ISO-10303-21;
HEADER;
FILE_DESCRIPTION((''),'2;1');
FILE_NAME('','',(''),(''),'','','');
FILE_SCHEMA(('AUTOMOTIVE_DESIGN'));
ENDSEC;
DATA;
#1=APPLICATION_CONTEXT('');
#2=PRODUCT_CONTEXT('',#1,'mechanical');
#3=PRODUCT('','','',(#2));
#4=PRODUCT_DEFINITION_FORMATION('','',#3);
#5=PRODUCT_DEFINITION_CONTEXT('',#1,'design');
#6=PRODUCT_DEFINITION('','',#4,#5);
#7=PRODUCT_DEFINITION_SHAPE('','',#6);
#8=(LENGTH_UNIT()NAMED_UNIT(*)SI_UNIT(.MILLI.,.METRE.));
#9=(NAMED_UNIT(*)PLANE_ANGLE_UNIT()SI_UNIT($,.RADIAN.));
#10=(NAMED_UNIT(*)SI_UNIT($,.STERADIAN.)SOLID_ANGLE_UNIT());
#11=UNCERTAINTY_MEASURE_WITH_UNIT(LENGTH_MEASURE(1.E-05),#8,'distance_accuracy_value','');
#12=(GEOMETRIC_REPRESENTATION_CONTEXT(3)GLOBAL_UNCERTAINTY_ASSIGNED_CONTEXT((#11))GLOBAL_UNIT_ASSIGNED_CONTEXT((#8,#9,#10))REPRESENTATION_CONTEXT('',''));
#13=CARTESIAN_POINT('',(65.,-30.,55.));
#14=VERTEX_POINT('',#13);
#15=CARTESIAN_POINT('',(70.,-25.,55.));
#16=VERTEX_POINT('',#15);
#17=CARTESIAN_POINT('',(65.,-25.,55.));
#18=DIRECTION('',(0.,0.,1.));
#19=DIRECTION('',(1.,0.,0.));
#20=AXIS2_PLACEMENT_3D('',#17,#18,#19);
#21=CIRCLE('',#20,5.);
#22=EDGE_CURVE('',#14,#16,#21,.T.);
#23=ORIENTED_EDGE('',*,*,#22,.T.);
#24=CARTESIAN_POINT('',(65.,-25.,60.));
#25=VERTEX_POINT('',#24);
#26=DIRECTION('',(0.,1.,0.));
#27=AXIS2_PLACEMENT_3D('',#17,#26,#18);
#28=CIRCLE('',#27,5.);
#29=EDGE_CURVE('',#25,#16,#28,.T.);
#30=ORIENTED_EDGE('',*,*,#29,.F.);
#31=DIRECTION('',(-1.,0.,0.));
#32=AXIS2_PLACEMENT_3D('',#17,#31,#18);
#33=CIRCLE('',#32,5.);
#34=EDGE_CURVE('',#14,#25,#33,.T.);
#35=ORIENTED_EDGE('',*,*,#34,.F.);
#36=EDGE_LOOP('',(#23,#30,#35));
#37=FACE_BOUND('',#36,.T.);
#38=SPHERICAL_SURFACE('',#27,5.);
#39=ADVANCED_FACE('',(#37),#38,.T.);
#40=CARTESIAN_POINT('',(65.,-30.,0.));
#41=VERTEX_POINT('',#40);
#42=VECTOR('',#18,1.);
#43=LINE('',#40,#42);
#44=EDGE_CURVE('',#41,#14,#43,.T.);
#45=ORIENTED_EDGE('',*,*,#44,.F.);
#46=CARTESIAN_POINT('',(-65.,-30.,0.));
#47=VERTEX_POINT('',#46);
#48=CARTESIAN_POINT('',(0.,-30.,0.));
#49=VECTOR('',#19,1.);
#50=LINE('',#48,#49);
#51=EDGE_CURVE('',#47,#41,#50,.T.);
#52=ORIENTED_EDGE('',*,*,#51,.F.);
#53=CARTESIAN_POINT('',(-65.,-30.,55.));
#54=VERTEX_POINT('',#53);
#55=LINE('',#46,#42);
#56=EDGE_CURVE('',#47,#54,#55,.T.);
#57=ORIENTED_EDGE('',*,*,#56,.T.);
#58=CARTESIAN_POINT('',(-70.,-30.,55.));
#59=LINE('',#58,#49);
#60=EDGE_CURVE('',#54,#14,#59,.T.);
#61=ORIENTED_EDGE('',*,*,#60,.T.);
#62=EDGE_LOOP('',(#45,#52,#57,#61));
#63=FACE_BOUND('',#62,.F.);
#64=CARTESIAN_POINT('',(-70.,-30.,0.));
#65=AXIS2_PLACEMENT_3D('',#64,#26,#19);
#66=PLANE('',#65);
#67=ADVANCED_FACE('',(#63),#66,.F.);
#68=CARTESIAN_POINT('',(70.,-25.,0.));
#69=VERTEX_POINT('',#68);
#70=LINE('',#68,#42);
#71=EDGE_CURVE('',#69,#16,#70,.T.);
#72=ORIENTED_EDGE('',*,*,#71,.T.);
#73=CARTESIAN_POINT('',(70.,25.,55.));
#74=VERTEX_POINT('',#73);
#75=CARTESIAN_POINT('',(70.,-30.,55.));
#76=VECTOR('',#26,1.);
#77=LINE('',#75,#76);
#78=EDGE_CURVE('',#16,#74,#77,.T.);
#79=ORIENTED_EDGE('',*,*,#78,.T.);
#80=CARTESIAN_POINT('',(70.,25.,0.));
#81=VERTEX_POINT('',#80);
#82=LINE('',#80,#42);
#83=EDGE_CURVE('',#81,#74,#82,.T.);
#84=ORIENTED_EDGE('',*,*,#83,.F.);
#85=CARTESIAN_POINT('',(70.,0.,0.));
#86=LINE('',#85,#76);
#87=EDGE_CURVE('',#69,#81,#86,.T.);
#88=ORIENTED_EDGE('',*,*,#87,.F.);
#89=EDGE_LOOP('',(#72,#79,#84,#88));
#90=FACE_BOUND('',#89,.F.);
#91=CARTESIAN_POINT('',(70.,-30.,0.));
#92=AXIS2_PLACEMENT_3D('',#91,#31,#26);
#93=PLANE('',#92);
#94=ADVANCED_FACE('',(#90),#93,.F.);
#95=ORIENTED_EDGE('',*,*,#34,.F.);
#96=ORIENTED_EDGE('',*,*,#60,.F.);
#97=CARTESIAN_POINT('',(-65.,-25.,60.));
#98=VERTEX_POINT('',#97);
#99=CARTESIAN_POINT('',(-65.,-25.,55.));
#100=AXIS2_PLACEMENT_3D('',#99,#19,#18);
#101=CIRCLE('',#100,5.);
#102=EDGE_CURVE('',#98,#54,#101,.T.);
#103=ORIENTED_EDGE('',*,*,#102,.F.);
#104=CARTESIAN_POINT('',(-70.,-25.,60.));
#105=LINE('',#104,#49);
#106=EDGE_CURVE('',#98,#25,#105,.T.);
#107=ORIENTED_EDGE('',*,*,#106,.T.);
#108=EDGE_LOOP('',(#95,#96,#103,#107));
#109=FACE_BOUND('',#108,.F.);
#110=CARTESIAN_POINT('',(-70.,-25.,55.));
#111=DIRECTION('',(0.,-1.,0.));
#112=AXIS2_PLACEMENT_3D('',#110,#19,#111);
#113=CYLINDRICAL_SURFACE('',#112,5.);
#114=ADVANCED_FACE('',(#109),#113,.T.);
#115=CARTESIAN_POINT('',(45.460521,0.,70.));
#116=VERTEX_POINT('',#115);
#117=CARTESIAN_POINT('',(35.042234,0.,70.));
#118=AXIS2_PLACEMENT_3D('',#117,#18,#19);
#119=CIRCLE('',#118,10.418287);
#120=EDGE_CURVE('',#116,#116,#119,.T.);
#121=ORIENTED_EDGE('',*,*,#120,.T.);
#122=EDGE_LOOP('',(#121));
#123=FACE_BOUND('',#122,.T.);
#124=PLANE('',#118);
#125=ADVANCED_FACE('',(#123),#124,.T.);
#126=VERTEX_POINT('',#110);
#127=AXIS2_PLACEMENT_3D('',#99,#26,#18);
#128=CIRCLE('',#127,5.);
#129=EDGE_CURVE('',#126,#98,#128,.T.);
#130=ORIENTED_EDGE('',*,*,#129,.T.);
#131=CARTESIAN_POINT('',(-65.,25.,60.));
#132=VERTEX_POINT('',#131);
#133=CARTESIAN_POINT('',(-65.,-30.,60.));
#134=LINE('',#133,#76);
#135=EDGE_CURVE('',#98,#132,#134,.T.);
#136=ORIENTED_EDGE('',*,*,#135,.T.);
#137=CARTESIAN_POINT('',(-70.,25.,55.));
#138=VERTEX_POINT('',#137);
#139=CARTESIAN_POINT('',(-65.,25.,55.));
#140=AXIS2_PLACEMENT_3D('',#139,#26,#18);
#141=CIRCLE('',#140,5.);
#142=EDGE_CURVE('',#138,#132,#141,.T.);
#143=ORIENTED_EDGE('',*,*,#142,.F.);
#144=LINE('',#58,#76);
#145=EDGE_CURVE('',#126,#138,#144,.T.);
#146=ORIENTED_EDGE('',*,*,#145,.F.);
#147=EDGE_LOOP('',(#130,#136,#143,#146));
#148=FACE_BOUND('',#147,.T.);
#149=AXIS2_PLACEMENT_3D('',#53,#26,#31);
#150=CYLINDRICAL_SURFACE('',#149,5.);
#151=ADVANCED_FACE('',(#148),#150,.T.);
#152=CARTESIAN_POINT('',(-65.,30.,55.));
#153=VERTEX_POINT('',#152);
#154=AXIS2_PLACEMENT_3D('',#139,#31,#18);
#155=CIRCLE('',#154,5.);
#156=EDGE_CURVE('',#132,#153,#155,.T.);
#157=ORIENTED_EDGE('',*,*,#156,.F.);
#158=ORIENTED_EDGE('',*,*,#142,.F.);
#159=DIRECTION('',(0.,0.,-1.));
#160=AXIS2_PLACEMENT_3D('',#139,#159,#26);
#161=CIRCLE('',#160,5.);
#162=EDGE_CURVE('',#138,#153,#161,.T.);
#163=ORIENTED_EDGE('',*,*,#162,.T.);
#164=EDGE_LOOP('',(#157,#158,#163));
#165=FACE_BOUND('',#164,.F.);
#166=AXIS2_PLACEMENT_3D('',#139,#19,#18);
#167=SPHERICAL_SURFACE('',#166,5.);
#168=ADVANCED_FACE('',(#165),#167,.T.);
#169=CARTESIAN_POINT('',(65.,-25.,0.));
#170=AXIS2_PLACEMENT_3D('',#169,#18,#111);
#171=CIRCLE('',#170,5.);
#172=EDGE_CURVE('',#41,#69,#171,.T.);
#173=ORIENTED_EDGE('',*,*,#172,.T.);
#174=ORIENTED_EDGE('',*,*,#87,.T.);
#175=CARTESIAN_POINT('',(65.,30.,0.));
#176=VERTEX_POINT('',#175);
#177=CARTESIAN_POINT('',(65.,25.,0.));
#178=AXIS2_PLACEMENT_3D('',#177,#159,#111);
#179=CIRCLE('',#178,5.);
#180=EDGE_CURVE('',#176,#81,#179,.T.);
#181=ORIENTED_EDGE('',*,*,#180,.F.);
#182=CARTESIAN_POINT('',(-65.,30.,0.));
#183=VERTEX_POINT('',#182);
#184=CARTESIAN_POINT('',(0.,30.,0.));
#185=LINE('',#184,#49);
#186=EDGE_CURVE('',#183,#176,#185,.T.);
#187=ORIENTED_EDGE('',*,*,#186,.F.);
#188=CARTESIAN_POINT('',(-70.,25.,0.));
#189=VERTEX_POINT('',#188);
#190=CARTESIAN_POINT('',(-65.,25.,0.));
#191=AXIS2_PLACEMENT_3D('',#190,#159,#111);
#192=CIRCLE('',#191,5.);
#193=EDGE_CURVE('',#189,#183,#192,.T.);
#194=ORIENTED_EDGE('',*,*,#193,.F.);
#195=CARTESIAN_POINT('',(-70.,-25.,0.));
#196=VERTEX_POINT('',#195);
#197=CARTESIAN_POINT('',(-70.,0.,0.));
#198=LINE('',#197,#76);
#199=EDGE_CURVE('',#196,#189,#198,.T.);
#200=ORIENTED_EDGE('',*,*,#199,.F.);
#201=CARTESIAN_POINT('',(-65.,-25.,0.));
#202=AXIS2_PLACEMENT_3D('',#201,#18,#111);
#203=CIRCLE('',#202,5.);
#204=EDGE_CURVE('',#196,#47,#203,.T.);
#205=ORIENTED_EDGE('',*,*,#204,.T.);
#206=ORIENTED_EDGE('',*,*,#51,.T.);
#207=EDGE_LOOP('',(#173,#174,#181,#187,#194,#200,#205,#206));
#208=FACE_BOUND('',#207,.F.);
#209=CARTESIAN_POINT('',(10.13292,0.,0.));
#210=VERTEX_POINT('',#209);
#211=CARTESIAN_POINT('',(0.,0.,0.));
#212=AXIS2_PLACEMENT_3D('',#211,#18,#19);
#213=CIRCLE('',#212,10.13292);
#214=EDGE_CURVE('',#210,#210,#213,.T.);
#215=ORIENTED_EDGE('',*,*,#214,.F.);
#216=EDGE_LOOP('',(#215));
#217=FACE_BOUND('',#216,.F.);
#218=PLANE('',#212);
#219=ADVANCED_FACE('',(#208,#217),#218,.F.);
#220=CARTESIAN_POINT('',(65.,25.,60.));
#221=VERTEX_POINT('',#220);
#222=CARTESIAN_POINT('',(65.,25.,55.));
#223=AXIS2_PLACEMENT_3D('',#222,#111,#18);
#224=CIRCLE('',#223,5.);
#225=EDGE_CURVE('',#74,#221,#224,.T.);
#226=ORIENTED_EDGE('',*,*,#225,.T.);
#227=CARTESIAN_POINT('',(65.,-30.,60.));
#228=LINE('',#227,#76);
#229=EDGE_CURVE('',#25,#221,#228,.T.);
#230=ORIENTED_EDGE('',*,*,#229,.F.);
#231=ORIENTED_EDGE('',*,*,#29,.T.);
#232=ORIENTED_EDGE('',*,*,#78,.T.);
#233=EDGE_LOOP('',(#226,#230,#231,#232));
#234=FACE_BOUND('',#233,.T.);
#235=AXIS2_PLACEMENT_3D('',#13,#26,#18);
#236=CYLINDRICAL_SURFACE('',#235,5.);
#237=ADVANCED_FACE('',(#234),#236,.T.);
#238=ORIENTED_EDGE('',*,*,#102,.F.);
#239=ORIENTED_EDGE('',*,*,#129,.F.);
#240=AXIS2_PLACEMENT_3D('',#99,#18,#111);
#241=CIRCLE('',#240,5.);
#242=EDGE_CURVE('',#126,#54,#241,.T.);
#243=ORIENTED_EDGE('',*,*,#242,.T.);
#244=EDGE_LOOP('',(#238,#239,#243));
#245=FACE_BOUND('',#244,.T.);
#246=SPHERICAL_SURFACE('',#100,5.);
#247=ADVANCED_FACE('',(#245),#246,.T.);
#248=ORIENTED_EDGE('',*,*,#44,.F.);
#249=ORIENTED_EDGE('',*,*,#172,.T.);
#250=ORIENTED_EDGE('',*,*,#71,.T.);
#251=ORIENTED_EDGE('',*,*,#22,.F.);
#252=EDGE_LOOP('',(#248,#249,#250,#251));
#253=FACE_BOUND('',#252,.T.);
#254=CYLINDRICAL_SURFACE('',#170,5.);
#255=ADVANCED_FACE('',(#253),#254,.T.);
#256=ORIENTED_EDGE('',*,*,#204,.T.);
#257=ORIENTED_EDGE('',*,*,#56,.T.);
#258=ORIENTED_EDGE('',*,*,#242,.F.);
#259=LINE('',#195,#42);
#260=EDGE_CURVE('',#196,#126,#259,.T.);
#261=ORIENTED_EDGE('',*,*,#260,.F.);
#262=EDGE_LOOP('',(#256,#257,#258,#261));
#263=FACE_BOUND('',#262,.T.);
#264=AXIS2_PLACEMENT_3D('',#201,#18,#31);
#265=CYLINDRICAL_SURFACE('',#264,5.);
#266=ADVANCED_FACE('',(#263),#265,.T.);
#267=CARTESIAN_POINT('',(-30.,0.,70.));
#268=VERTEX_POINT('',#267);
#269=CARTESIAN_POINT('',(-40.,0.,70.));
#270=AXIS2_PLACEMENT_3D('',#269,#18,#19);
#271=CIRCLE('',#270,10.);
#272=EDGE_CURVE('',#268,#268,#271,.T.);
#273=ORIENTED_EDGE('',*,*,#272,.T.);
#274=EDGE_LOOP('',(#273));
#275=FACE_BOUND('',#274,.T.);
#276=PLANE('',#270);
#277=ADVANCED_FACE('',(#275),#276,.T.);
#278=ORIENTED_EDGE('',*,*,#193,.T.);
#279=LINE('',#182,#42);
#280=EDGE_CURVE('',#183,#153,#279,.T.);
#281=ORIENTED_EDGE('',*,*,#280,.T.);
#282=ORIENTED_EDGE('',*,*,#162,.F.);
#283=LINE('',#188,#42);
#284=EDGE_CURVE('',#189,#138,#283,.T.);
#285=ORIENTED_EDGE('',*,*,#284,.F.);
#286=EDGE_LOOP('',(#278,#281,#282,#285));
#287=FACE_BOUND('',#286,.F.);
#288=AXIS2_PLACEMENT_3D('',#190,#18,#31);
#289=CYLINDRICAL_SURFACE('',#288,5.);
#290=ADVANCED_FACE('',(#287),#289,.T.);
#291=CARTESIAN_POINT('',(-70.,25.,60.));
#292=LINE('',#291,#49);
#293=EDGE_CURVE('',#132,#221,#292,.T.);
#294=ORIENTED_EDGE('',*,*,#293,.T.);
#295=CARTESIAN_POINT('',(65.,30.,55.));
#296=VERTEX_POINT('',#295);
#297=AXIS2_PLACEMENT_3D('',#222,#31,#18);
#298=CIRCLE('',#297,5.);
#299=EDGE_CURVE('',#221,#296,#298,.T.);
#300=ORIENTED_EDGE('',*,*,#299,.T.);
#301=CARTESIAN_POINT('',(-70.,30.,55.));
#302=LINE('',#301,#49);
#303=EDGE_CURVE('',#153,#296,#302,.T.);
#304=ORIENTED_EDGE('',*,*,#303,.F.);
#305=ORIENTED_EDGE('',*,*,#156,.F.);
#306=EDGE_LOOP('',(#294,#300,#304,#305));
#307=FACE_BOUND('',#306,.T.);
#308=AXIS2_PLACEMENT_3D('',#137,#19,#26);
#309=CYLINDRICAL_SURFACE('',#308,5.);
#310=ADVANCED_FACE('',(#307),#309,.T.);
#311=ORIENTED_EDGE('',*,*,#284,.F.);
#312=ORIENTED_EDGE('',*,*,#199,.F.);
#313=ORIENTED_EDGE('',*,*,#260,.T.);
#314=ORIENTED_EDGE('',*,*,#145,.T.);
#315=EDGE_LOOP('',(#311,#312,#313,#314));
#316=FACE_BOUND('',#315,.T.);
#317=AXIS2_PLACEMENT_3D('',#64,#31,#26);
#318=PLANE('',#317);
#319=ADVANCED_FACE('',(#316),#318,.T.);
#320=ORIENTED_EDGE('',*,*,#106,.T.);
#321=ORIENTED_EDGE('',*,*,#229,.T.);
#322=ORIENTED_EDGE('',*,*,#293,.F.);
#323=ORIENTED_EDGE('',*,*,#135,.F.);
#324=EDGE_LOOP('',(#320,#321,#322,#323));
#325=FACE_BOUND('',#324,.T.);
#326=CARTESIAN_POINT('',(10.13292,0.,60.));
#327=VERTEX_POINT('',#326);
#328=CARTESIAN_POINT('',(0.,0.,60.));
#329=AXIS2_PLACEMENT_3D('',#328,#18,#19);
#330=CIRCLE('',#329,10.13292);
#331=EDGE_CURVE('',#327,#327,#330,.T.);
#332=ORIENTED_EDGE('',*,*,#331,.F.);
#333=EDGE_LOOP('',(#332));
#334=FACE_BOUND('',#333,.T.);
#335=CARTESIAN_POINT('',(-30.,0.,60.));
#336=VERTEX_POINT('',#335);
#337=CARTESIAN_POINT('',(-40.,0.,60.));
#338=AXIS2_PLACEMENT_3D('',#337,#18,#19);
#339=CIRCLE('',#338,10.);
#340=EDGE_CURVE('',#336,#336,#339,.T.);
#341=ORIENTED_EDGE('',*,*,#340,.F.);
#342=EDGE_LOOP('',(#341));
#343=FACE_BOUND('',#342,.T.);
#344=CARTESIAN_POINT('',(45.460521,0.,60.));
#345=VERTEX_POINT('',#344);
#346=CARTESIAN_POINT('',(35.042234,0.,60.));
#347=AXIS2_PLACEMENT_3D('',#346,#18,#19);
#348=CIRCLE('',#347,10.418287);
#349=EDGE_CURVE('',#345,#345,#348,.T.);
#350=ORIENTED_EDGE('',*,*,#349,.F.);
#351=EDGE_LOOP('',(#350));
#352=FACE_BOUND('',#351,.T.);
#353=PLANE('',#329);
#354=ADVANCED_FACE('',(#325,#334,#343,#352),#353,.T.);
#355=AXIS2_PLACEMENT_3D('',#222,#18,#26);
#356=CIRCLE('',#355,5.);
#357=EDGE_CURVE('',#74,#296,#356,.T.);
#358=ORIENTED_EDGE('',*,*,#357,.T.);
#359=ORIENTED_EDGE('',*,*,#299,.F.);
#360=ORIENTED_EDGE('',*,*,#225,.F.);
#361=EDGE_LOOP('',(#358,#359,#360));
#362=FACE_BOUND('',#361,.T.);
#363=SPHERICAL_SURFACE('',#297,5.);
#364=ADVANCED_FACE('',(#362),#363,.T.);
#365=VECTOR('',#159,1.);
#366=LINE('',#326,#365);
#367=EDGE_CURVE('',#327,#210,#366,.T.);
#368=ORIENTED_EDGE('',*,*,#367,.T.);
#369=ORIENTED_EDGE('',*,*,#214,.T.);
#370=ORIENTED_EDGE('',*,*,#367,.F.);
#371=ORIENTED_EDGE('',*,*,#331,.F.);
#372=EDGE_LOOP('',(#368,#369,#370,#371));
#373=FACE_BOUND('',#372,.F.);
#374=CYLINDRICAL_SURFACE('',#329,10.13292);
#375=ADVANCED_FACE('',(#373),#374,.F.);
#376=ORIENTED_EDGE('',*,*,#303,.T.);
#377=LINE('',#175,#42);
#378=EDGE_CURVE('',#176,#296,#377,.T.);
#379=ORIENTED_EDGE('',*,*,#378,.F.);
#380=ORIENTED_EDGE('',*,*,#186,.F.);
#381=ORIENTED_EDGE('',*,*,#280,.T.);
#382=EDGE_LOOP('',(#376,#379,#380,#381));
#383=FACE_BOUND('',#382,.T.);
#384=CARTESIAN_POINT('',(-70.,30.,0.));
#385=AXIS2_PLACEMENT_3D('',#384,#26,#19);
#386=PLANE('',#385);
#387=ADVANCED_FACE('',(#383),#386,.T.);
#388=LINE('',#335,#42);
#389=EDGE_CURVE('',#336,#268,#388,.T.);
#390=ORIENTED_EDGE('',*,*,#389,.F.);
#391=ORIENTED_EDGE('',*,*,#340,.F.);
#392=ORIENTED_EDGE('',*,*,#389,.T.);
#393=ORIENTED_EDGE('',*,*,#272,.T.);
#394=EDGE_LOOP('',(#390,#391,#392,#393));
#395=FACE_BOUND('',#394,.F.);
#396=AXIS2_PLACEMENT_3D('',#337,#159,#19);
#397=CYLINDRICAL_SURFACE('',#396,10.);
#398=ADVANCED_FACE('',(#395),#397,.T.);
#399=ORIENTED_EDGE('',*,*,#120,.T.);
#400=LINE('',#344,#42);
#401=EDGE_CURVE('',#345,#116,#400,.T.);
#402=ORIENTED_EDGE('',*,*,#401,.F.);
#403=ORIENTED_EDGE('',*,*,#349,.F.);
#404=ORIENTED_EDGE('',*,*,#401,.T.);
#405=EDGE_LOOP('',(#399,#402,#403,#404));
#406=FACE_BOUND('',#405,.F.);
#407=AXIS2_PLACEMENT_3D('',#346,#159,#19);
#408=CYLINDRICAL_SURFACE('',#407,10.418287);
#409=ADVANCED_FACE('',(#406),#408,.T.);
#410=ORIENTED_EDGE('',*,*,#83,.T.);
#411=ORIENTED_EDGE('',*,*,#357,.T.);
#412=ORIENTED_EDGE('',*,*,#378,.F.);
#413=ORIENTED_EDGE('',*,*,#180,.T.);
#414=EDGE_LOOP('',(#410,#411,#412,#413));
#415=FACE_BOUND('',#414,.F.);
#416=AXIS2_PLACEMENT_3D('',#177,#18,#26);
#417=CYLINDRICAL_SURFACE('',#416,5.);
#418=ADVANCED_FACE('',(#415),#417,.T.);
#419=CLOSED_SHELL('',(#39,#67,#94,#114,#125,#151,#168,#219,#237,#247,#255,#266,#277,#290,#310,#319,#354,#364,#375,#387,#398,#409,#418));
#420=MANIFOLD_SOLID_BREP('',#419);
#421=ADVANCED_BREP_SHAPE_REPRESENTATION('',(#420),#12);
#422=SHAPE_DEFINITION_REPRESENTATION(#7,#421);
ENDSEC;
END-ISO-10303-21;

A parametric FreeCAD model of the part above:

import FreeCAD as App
import Part
import Sketcher

V = App.Vector


def edges_at(feature, points):
    """Names of the edges that pass closest to the given points."""
    edges = feature.Shape.Edges
    near = lambda p: min(range(len(edges)), key=lambda i: edges[i].distToShape(Part.Vertex(*p))[0])
    return sorted({f"Edge{near(p) + 1}" for p in points})

doc = App.newDocument("Part")
body = doc.addObject("PartDesign::Body", "Body")

sketch1 = body.newObject("Sketcher::SketchObject", "Sketch")
sketch1.AttachmentSupport = (doc.getObject("XY_Plane"), [""])
sketch1.MapMode = "FlatFace"
sketch1.addGeometry(Part.LineSegment(V(-70, 30, 0), V(-70, -30, 0)), False)
sketch1.addGeometry(Part.LineSegment(V(-70, -30, 0), V(70, -30, 0)), False)
sketch1.addGeometry(Part.LineSegment(V(70, -30, 0), V(70, 30, 0)), False)
sketch1.addGeometry(Part.LineSegment(V(70, 30, 0), V(-70, 30, 0)), False)
sketch1.addConstraint(Sketcher.Constraint("Coincident", 0, 2, 1, 1))
sketch1.addConstraint(Sketcher.Constraint("Coincident", 1, 2, 2, 1))
sketch1.addConstraint(Sketcher.Constraint("Coincident", 2, 2, 3, 1))
sketch1.addConstraint(Sketcher.Constraint("Coincident", 3, 2, 0, 1))
sketch1.addConstraint(Sketcher.Constraint("Vertical", 0))
sketch1.addConstraint(Sketcher.Constraint("Horizontal", 1))
sketch1.addConstraint(Sketcher.Constraint("Vertical", 2))
sketch1.addConstraint(Sketcher.Constraint("Horizontal", 3))
sketch1.addConstraint(Sketcher.Constraint("Symmetric", 0, 2, 2, 2, -1, 1))
sketch1.addConstraint(Sketcher.Constraint("DistanceX", 1, 1, 1, 2, 140.0))
sketch1.addConstraint(Sketcher.Constraint("DistanceY", 0, 2, 0, 1, 60.0))
pad1 = body.newObject("PartDesign::Pad", "Pad")
pad1.Profile = sketch1
pad1.Length = 60

sketch2 = body.newObject("Sketcher::SketchObject", "Sketch001")
sketch2.AttachmentSupport = (doc.getObject("XY_Plane"), [""])
sketch2.MapMode = "FlatFace"
sketch2.AttachmentOffset = App.Placement(V(0, 0, 60), App.Rotation())
sketch2.addGeometry(Part.Circle(V(-40, 0, 0), V(0, 0, 1), 10), False)
sketch2.addConstraint(Sketcher.Constraint("PointOnObject", 0, 3, -1))
sketch2.addConstraint(Sketcher.Constraint("Diameter", 0, 20.0))
sketch2.addConstraint(Sketcher.Constraint("DistanceX", 0, 3, -1, 1, 40.0))
pad2 = body.newObject("PartDesign::Pad", "Pad001")
pad2.Profile = sketch2
pad2.Length = 10

sketch3 = body.newObject("Sketcher::SketchObject", "Sketch002")
sketch3.AttachmentSupport = (doc.getObject("XY_Plane"), [""])
sketch3.MapMode = "FlatFace"
sketch3.AttachmentOffset = App.Placement(V(0, 0, 60), App.Rotation())
sketch3.addGeometry(Part.Circle(V(0, 0, 0), V(0, 0, 1), 10), False)
sketch3.addConstraint(Sketcher.Constraint("Coincident", 0, 3, -1, 1))
sketch3.addConstraint(Sketcher.Constraint("Diameter", 0, 20.26584))
pocket1 = body.newObject("PartDesign::Pocket", "Pocket")
pocket1.Profile = sketch3
pocket1.Length = 175

sketch4 = body.newObject("Sketcher::SketchObject", "Sketch003")
sketch4.AttachmentSupport = (doc.getObject("XY_Plane"), [""])
sketch4.MapMode = "FlatFace"
sketch4.AttachmentOffset = App.Placement(V(0, 0, 60), App.Rotation())
sketch4.addGeometry(Part.Circle(V(35, 0, 0), V(0, 0, 1), 10), False)
sketch4.addConstraint(Sketcher.Constraint("PointOnObject", 0, 3, -1))
sketch4.addConstraint(Sketcher.Constraint("Diameter", 0, 20.836574))
sketch4.addConstraint(Sketcher.Constraint("DistanceX", -1, 1, 0, 3, 35.042234))
pad3 = body.newObject("PartDesign::Pad", "Pad002")
pad3.Profile = sketch4
pad3.Length = 10
doc.recompute()

fillet = body.newObject("PartDesign::Fillet", "Fillet")
fillet.Base = (pad3, edges_at(pad3, [
    (0, 30, 60),
    (70, 0, 60),
    (0, -30, 60),
    (-70, 0, 60),
    (-70, 30, 30),
    (-70, -30, 30),
    (70, -30, 30),
    (70, 30, 30),
]))
fillet.Radius = 5

doc.recompute()
